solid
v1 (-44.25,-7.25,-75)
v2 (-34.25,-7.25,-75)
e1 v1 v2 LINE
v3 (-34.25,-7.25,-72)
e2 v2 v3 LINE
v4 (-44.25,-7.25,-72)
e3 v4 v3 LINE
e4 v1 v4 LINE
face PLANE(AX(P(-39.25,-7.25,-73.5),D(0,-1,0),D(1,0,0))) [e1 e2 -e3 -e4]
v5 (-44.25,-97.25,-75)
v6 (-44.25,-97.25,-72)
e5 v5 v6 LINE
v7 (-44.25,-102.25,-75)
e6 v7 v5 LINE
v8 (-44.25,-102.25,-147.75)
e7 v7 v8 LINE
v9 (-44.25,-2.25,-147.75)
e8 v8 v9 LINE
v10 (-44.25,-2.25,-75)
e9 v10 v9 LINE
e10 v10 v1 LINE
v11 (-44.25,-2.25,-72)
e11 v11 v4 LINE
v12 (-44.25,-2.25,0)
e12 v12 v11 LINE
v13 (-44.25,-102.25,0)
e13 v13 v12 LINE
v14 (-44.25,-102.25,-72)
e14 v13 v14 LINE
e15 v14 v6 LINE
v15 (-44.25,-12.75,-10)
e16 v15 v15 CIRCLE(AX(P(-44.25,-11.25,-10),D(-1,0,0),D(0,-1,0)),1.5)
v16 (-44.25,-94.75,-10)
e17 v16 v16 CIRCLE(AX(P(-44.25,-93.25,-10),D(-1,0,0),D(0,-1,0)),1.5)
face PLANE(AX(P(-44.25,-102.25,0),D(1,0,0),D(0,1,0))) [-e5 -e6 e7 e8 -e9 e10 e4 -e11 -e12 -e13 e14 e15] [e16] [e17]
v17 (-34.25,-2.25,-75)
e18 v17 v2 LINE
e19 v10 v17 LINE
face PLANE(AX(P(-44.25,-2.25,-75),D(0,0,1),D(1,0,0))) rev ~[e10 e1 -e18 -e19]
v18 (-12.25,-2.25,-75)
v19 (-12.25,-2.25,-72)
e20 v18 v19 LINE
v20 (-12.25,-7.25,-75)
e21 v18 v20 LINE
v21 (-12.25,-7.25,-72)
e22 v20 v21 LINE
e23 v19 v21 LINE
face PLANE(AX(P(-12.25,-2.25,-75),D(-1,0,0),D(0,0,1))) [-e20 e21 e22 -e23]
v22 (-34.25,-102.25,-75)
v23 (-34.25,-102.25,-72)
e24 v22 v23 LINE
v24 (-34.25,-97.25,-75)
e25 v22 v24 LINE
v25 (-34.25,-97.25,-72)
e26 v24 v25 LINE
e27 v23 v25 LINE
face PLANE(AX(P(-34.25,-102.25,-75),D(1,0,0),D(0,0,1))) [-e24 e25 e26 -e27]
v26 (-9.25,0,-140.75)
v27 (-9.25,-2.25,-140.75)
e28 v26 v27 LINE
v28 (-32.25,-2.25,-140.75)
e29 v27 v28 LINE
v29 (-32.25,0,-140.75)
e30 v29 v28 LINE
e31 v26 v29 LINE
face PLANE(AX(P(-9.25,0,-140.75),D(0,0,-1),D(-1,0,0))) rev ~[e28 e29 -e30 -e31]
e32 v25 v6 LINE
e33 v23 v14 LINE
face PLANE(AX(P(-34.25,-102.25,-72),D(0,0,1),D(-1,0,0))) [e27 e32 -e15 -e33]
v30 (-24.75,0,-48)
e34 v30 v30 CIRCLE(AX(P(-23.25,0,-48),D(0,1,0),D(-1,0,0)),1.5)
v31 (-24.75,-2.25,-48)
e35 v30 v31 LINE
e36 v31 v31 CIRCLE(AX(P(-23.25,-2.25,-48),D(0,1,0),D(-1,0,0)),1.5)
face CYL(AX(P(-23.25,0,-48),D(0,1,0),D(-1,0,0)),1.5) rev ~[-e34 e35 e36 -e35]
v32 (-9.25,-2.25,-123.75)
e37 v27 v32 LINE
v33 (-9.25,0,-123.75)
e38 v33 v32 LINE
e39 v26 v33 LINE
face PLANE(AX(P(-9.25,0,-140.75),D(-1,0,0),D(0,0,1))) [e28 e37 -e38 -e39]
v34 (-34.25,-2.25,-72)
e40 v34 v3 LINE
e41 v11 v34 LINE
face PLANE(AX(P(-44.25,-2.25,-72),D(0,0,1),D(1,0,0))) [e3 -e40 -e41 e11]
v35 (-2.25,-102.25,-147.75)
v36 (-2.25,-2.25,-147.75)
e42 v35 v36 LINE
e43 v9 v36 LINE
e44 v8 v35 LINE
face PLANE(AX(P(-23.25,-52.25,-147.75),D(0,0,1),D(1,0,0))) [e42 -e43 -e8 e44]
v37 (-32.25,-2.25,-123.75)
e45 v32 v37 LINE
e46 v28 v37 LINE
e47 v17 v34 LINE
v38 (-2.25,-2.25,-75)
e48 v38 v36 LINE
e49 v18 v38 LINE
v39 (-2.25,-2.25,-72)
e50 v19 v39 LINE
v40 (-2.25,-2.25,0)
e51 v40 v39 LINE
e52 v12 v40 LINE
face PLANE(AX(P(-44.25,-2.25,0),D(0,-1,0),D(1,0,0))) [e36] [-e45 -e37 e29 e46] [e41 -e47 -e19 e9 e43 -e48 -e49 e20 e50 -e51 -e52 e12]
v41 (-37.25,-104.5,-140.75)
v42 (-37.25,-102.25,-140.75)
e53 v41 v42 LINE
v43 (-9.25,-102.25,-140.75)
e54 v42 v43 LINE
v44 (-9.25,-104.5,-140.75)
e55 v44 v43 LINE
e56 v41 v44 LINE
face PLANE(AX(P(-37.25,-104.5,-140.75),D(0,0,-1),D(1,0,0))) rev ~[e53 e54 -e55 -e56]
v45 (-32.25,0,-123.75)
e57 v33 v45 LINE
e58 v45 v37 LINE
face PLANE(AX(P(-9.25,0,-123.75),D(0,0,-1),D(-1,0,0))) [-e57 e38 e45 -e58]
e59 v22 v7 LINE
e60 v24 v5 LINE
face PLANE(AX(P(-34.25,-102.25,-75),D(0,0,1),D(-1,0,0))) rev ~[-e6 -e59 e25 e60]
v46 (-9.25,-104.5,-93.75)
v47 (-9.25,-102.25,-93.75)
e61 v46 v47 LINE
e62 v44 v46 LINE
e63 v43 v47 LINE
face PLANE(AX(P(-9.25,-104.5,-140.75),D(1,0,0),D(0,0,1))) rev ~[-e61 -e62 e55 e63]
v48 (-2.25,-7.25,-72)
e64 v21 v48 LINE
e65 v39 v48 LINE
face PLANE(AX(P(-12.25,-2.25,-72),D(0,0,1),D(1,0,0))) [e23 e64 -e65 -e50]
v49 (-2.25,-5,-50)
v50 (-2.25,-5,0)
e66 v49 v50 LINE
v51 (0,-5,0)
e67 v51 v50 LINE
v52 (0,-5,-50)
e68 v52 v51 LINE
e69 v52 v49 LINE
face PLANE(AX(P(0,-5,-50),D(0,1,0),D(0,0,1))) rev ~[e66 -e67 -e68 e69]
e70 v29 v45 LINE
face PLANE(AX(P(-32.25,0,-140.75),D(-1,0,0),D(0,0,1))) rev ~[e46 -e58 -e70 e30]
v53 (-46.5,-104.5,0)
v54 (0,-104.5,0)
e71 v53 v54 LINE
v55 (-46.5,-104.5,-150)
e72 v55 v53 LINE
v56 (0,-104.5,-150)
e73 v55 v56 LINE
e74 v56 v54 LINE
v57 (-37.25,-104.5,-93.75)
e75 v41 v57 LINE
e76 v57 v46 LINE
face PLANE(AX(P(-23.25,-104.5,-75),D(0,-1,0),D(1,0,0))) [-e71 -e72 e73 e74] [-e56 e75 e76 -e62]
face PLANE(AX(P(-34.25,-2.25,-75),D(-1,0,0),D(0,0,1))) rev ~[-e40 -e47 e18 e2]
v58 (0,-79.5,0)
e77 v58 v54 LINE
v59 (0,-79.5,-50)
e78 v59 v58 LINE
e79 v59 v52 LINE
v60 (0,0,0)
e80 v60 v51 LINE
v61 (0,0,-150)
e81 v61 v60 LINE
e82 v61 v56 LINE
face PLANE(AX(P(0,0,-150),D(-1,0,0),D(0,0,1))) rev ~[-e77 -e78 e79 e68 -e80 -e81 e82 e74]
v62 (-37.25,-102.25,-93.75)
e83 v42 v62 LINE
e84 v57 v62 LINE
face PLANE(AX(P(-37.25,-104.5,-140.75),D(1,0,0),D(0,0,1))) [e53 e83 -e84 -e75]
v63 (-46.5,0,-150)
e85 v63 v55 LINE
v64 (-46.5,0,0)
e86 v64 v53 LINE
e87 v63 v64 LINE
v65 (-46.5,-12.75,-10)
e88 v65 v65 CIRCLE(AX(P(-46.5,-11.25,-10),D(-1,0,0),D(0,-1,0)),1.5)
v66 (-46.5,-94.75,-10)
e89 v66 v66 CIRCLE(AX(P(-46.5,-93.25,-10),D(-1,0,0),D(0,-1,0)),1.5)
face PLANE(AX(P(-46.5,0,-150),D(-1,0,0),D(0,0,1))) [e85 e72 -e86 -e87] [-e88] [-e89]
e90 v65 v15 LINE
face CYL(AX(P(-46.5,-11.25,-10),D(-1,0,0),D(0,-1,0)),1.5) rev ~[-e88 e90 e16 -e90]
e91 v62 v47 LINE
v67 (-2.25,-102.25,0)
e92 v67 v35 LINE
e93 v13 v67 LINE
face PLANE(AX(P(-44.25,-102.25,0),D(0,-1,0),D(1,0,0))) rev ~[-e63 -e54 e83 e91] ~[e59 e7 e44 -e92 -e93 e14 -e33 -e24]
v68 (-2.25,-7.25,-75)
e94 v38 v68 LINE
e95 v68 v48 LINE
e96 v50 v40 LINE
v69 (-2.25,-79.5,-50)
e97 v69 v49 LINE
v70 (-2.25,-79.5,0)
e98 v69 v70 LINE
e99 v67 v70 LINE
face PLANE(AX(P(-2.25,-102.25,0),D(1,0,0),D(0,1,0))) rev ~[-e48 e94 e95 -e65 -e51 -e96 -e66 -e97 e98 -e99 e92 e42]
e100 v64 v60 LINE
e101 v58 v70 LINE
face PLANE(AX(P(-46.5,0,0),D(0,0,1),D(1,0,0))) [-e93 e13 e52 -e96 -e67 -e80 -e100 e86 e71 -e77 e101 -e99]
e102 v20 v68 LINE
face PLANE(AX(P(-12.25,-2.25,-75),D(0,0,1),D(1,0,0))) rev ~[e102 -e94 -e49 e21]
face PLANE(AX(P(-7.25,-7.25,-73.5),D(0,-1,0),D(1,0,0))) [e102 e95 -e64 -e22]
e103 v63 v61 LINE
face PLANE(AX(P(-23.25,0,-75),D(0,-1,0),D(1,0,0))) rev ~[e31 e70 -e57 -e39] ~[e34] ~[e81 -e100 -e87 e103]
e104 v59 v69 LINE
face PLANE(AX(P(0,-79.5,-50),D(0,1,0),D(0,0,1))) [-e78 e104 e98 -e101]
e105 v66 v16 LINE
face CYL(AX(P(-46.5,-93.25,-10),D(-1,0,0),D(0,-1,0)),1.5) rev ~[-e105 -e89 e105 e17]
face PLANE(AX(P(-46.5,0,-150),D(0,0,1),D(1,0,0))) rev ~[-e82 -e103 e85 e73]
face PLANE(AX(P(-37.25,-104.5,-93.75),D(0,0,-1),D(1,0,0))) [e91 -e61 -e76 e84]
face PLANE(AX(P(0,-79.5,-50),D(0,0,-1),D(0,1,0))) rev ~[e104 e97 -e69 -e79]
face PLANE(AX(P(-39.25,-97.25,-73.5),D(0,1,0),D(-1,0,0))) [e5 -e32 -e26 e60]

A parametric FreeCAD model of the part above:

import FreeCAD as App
import Part
import Sketcher


def add_polygon(sketch, points):
    """Adds a closed chain of lines whose ends are joined by coincident constraints."""
    first, n = sketch.GeometryCount, len(points)
    for a, b in zip(points, points[1:] + points[:1]):
        sketch.addGeometry(Part.LineSegment(App.Vector(*a, 0), App.Vector(*b, 0)), False)
    for i in range(n):
        sketch.addConstraint(Sketcher.Constraint("Coincident", first + i, 2, first + (i + 1) % n, 1))

doc = App.newDocument("Part")
body = doc.addObject("PartDesign::Body", "Body")

sketch1 = doc.addObject("Sketcher::SketchObject", "Sketch")
body.addObject(sketch1)
sketch1.AttachmentSupport = (doc.XZ_Plane, [""])
sketch1.MapMode = "FlatFace"
add_polygon(sketch1, [(-46, 0), (-46, -150), (0, -150), (0, 0)])
sketch1.addConstraint(Sketcher.Constraint("Vertical", 0))
sketch1.addConstraint(Sketcher.Constraint("Horizontal", 1))
sketch1.addConstraint(Sketcher.Constraint("Vertical", 2))
sketch1.addConstraint(Sketcher.Constraint("Horizontal", 3))
sketch1.addConstraint(Sketcher.Constraint("Coincident", 2, 2, -1, 1))
sketch1.addConstraint(Sketcher.Constraint("DistanceY", 0, 2, 0, 1, 150.0))
sketch1.addConstraint(Sketcher.Constraint("DistanceX", 1, 1, 1, 2, 46.5))
pad1 = doc.addObject("PartDesign::Pad", "Pad")
body.addObject(pad1)
pad1.Profile = sketch1
pad1.Length = 104.5

sketch2 = doc.addObject("Sketcher::SketchObject", "Sketch001")
body.addObject(sketch2)
sketch2.AttachmentSupport = (doc.XY_Plane, [""])
sketch2.MapMode = "FlatFace"
add_polygon(sketch2, [(-44, -2), (-44, -102), (-2, -102), (-2, -2)])
sketch2.addConstraint(Sketcher.Constraint("Vertical", 0))
sketch2.addConstraint(Sketcher.Constraint("Horizontal", 1))
sketch2.addConstraint(Sketcher.Constraint("Vertical", 2))
sketch2.addConstraint(Sketcher.Constraint("Horizontal", 3))
sketch2.addConstraint(Sketcher.Constraint("DistanceX", 1, 1, 1, 2, 42.0))
sketch2.addConstraint(Sketcher.Constraint("DistanceY", 0, 2, 0, 1, 100.0))
sketch2.addConstraint(Sketcher.Constraint("DistanceX", 0, 2, -1, 1, 44.25))
sketch2.addConstraint(Sketcher.Constraint("DistanceY", 0, 2, -1, 1, 102.25))
pocket1 = doc.addObject("PartDesign::Pocket", "Pocket")
body.addObject(pocket1)
pocket1.Profile = sketch2
pocket1.Length = 147.75

sketch3 = doc.addObject("Sketcher::SketchObject", "Sketch002")
body.addObject(sketch3)
sketch3.AttachmentSupport = (doc.YZ_Plane, [""])
sketch3.MapMode = "FlatFace"
add_polygon(sketch3, [(-80, 0), (-80, -50), (-5, -50), (-5, 0)])
sketch3.addConstraint(Sketcher.Constraint("Vertical", 0))
sketch3.addConstraint(Sketcher.Constraint("Horizontal", 1))
sketch3.addConstraint(Sketcher.Constraint("Vertical", 2))
sketch3.addConstraint(Sketcher.Constraint("Horizontal", 3))
sketch3.addConstraint(Sketcher.Constraint("PointOnObject", 2, 2, -1))
sketch3.addConstraint(Sketcher.Constraint("DistanceY", 0, 2, 0, 1, 50.0))
sketch3.addConstraint(Sketcher.Constraint("DistanceX", 1, 1, 1, 2, 74.5))
sketch3.addConstraint(Sketcher.Constraint("DistanceX", 1, 2, -1, 1, 5.0))
pocket2 = doc.addObject("PartDesign::Pocket", "Pocket001")
body.addObject(pocket2)
pocket2.Profile = sketch3
pocket2.Length = 2.25

sketch4 = doc.addObject("Sketcher::SketchObject", "Sketch003")
body.addObject(sketch4)
sketch4.AttachmentSupport = (doc.YZ_Plane, [""])
sketch4.MapMode = "FlatFace"
sketch4.AttachmentOffset = App.Placement(App.Vector(0, 0, -46.5), App.Rotation())
sketch4.addGeometry(Part.Circle(App.Vector(-11.2, -10, 0), App.Vector(0, 0, 1), 1.5), False)
sketch4.addGeometry(Part.Circle(App.Vector(-93.2, -10, 0), App.Vector(0, 0, 1), 1.5), False)
sketch4.addConstraint(Sketcher.Constraint("Equal", 0, 1))
sketch4.addConstraint(Sketcher.Constraint("Horizontal", 0, 3, 1, 3))
sketch4.addConstraint(Sketcher.Constraint("Diameter", 0, 3.0))
sketch4.addConstraint(Sketcher.Constraint("DistanceY", 0, 3, -1, 1, 10.0))
sketch4.addConstraint(Sketcher.Constraint("DistanceX", 1, 3, 0, 3, 82.0))
sketch4.addConstraint(Sketcher.Constraint("DistanceX", 0, 3, -1, 1, 11.25))
pocket3 = doc.addObject("PartDesign::Pocket", "Pocket002")
body.addObject(pocket3)
pocket3.Profile = sketch4
pocket3.Length = 2.25
pocket3.Reversed = True

sketch5 = doc.addObject("Sketcher::SketchObject", "Sketch004")
body.addObject(sketch5)
sketch5.AttachmentSupport = (doc.XZ_Plane, [""])
sketch5.MapMode = "FlatFace"
sketch5.addGeometry(Part.Circle(App.Vector(-23.2, -48, 0), App.Vector(0, 0, 1), 1.5), False)
sketch5.addConstraint(Sketcher.Constraint("Diameter", 0, 3.0))
sketch5.addConstraint(Sketcher.Constraint("DistanceY", 0, 3, -1, 1, 48.0))
sketch5.addConstraint(Sketcher.Constraint("DistanceX", 0, 3, -1, 1, 23.25))
pocket4 = doc.addObject("PartDesign::Pocket", "Pocket003")
body.addObject(pocket4)
pocket4.Profile = sketch5
pocket4.Length = 2.25
pocket4.Reversed = True

sketch6 = doc.addObject("Sketcher::SketchObject", "Sketch005")
body.addObject(sketch6)
sketch6.AttachmentSupport = (doc.XZ_Plane, [""])
sketch6.MapMode = "FlatFace"
sketch6.AttachmentOffset = App.Placement(App.Vector(0, 0, 2.25), App.Rotation())
add_polygon(sketch6, [(-44.2, -72), (-44.2, -75), (-34.2, -75), (-34.2, -72)])
add_polygon(sketch6, [(-12.2, -72), (-12.2, -75), (-2.2, -75), (-2.2, -72)])
sketch6.addConstraint(Sketcher.Constraint("Vertical", 0))
sketch6.addConstraint(Sketcher.Constraint("Horizontal", 1))
sketch6.addConstraint(Sketcher.Constraint("Vertical", 2))
sketch6.addConstraint(Sketcher.Constraint("Horizontal", 3))
sketch6.addConstraint(Sketcher.Constraint("Vertical", 4))
sketch6.addConstraint(Sketcher.Constraint("Horizontal", 5))
sketch6.addConstraint(Sketcher.Constraint("Vertical", 6))
sketch6.addConstraint(Sketcher.Constraint("Horizontal", 7))
sketch6.addConstraint(Sketcher.Constraint("Horizontal", 1, 2, 4, 2))
sketch6.addConstraint(Sketcher.Constraint("Horizontal", 3, 2, 6, 2))
sketch6.addConstraint(Sketcher.Constraint("Equal", 3, 5))
sketch6.addConstraint(Sketcher.Constraint("DistanceX", 1, 1, 1, 2, 10.0))
sketch6.addConstraint(Sketcher.Constraint("DistanceY", 0, 2, 0, 1, 3.0))
sketch6.addConstraint(Sketcher.Constraint("DistanceY", 0, 2, -1, 1, 75.0))
sketch6.addConstraint(Sketcher.Constraint("DistanceX", 1, 2, 4, 2, 22.0))
sketch6.addConstraint(Sketcher.Constraint("DistanceX", 0, 2, -1, 1, 44.25))
pad2 = doc.addObject("PartDesign::Pad", "Pad001")
body.addObject(pad2)
pad2.Profile = sketch6
pad2.Length = 5

sketch7 = doc.addObject("Sketcher::SketchObject", "Sketch006")
body.addObject(sketch7)
sketch7.AttachmentSupport = (doc.XZ_Plane, [""])
sketch7.MapMode = "FlatFace"
sketch7.AttachmentOffset = App.Placement(App.Vector(0, 0, 102.25), App.Rotation())
add_polygon(sketch7, [(-34.2, -72), (-34.2, -75), (-44.2, -75), (-44.2, -72)])
sketch7.addConstraint(Sketcher.Constraint("Vertical", 0))
sketch7.addConstraint(Sketcher.Constraint("Horizontal", 1))
sketch7.addConstraint(Sketcher.Constraint("Vertical", 2))
sketch7.addConstraint(Sketcher.Constraint("Horizontal", 3))
sketch7.addConstraint(Sketcher.Constraint("DistanceX", 1, 2, 1, 1, 10.0))
sketch7.addConstraint(Sketcher.Constraint("DistanceY", 0, 2, 0, 1, 3.0))
sketch7.addConstraint(Sketcher.Constraint("DistanceY", 0, 2, -1, 1, 75.0))
sketch7.addConstraint(Sketcher.Constraint("DistanceX", 0, 2, -1, 1, 34.25))
pad3 = doc.addObject("PartDesign::Pad", "Pad002")
body.addObject(pad3)
pad3.Profile = sketch7
pad3.Length = 5
pad3.Reversed = True

sketch8 = doc.addObject("Sketcher::SketchObject", "Sketch007")
body.addObject(sketch8)
sketch8.AttachmentSupport = (doc.XZ_Plane, [""])
sketch8.MapMode = "FlatFace"
sketch8.AttachmentOffset = App.Placement(App.Vector(0, 0, 104.5), App.Rotation())
add_polygon(sketch8, [(-37, -94), (-37, -141), (-9, -141), (-9, -94)])
sketch8.addConstraint(Sketcher.Constraint("Vertical", 0))
sketch8.addConstraint(Sketcher.Constraint("Horizontal", 1))
sketch8.addConstraint(Sketcher.Constraint("Vertical", 2))
sketch8.addConstraint(Sketcher.Constraint("Horizontal", 3))
sketch8.addConstraint(Sketcher.Constraint("DistanceX", 1, 1, 1, 2, 28.0))
sketch8.addConstraint(Sketcher.Constraint("DistanceY", 0, 2, 0, 1, 47.0))
sketch8.addConstraint(Sketcher.Constraint("DistanceX", 0, 2, -1, 1, 37.25))
sketch8.addConstraint(Sketcher.Constraint("DistanceY", 0, 2, -1, 1, 140.75))
pocket5 = doc.addObject("PartDesign::Pocket", "Pocket004")
body.addObject(pocket5)
pocket5.Profile = sketch8
pocket5.Length = 2.25

sketch9 = doc.addObject("Sketcher::SketchObject", "Sketch008")
body.addObject(sketch9)
sketch9.AttachmentSupport = (doc.XZ_Plane, [""])
sketch9.MapMode = "FlatFace"
add_polygon(sketch9, [(-9, -124), (-9, -141), (-32, -141), (-32, -124)])
sketch9.addConstraint(Sketcher.Constraint("Vertical", 0))
sketch9.addConstraint(Sketcher.Constraint("Horizontal", 1))
sketch9.addConstraint(Sketcher.Constraint("Vertical", 2))
sketch9.addConstraint(Sketcher.Constraint("Horizontal", 3))
sketch9.addConstraint(Sketcher.Constraint("DistanceX", 1, 2, 1, 1, 23.0))
sketch9.addConstraint(Sketcher.Constraint("DistanceY", 0, 2, 0, 1, 17.0))
sketch9.addConstraint(Sketcher.Constraint("DistanceX", 0, 2, -1, 1, 9.25))
sketch9.addConstraint(Sketcher.Constraint("DistanceY", 0, 2, -1, 1, 140.75))
pocket6 = doc.addObject("PartDesign::Pocket", "Pocket005")
body.addObject(pocket6)
pocket6.Profile = sketch9
pocket6.Length = 2.25
pocket6.Reversed = True

doc.recompute()
